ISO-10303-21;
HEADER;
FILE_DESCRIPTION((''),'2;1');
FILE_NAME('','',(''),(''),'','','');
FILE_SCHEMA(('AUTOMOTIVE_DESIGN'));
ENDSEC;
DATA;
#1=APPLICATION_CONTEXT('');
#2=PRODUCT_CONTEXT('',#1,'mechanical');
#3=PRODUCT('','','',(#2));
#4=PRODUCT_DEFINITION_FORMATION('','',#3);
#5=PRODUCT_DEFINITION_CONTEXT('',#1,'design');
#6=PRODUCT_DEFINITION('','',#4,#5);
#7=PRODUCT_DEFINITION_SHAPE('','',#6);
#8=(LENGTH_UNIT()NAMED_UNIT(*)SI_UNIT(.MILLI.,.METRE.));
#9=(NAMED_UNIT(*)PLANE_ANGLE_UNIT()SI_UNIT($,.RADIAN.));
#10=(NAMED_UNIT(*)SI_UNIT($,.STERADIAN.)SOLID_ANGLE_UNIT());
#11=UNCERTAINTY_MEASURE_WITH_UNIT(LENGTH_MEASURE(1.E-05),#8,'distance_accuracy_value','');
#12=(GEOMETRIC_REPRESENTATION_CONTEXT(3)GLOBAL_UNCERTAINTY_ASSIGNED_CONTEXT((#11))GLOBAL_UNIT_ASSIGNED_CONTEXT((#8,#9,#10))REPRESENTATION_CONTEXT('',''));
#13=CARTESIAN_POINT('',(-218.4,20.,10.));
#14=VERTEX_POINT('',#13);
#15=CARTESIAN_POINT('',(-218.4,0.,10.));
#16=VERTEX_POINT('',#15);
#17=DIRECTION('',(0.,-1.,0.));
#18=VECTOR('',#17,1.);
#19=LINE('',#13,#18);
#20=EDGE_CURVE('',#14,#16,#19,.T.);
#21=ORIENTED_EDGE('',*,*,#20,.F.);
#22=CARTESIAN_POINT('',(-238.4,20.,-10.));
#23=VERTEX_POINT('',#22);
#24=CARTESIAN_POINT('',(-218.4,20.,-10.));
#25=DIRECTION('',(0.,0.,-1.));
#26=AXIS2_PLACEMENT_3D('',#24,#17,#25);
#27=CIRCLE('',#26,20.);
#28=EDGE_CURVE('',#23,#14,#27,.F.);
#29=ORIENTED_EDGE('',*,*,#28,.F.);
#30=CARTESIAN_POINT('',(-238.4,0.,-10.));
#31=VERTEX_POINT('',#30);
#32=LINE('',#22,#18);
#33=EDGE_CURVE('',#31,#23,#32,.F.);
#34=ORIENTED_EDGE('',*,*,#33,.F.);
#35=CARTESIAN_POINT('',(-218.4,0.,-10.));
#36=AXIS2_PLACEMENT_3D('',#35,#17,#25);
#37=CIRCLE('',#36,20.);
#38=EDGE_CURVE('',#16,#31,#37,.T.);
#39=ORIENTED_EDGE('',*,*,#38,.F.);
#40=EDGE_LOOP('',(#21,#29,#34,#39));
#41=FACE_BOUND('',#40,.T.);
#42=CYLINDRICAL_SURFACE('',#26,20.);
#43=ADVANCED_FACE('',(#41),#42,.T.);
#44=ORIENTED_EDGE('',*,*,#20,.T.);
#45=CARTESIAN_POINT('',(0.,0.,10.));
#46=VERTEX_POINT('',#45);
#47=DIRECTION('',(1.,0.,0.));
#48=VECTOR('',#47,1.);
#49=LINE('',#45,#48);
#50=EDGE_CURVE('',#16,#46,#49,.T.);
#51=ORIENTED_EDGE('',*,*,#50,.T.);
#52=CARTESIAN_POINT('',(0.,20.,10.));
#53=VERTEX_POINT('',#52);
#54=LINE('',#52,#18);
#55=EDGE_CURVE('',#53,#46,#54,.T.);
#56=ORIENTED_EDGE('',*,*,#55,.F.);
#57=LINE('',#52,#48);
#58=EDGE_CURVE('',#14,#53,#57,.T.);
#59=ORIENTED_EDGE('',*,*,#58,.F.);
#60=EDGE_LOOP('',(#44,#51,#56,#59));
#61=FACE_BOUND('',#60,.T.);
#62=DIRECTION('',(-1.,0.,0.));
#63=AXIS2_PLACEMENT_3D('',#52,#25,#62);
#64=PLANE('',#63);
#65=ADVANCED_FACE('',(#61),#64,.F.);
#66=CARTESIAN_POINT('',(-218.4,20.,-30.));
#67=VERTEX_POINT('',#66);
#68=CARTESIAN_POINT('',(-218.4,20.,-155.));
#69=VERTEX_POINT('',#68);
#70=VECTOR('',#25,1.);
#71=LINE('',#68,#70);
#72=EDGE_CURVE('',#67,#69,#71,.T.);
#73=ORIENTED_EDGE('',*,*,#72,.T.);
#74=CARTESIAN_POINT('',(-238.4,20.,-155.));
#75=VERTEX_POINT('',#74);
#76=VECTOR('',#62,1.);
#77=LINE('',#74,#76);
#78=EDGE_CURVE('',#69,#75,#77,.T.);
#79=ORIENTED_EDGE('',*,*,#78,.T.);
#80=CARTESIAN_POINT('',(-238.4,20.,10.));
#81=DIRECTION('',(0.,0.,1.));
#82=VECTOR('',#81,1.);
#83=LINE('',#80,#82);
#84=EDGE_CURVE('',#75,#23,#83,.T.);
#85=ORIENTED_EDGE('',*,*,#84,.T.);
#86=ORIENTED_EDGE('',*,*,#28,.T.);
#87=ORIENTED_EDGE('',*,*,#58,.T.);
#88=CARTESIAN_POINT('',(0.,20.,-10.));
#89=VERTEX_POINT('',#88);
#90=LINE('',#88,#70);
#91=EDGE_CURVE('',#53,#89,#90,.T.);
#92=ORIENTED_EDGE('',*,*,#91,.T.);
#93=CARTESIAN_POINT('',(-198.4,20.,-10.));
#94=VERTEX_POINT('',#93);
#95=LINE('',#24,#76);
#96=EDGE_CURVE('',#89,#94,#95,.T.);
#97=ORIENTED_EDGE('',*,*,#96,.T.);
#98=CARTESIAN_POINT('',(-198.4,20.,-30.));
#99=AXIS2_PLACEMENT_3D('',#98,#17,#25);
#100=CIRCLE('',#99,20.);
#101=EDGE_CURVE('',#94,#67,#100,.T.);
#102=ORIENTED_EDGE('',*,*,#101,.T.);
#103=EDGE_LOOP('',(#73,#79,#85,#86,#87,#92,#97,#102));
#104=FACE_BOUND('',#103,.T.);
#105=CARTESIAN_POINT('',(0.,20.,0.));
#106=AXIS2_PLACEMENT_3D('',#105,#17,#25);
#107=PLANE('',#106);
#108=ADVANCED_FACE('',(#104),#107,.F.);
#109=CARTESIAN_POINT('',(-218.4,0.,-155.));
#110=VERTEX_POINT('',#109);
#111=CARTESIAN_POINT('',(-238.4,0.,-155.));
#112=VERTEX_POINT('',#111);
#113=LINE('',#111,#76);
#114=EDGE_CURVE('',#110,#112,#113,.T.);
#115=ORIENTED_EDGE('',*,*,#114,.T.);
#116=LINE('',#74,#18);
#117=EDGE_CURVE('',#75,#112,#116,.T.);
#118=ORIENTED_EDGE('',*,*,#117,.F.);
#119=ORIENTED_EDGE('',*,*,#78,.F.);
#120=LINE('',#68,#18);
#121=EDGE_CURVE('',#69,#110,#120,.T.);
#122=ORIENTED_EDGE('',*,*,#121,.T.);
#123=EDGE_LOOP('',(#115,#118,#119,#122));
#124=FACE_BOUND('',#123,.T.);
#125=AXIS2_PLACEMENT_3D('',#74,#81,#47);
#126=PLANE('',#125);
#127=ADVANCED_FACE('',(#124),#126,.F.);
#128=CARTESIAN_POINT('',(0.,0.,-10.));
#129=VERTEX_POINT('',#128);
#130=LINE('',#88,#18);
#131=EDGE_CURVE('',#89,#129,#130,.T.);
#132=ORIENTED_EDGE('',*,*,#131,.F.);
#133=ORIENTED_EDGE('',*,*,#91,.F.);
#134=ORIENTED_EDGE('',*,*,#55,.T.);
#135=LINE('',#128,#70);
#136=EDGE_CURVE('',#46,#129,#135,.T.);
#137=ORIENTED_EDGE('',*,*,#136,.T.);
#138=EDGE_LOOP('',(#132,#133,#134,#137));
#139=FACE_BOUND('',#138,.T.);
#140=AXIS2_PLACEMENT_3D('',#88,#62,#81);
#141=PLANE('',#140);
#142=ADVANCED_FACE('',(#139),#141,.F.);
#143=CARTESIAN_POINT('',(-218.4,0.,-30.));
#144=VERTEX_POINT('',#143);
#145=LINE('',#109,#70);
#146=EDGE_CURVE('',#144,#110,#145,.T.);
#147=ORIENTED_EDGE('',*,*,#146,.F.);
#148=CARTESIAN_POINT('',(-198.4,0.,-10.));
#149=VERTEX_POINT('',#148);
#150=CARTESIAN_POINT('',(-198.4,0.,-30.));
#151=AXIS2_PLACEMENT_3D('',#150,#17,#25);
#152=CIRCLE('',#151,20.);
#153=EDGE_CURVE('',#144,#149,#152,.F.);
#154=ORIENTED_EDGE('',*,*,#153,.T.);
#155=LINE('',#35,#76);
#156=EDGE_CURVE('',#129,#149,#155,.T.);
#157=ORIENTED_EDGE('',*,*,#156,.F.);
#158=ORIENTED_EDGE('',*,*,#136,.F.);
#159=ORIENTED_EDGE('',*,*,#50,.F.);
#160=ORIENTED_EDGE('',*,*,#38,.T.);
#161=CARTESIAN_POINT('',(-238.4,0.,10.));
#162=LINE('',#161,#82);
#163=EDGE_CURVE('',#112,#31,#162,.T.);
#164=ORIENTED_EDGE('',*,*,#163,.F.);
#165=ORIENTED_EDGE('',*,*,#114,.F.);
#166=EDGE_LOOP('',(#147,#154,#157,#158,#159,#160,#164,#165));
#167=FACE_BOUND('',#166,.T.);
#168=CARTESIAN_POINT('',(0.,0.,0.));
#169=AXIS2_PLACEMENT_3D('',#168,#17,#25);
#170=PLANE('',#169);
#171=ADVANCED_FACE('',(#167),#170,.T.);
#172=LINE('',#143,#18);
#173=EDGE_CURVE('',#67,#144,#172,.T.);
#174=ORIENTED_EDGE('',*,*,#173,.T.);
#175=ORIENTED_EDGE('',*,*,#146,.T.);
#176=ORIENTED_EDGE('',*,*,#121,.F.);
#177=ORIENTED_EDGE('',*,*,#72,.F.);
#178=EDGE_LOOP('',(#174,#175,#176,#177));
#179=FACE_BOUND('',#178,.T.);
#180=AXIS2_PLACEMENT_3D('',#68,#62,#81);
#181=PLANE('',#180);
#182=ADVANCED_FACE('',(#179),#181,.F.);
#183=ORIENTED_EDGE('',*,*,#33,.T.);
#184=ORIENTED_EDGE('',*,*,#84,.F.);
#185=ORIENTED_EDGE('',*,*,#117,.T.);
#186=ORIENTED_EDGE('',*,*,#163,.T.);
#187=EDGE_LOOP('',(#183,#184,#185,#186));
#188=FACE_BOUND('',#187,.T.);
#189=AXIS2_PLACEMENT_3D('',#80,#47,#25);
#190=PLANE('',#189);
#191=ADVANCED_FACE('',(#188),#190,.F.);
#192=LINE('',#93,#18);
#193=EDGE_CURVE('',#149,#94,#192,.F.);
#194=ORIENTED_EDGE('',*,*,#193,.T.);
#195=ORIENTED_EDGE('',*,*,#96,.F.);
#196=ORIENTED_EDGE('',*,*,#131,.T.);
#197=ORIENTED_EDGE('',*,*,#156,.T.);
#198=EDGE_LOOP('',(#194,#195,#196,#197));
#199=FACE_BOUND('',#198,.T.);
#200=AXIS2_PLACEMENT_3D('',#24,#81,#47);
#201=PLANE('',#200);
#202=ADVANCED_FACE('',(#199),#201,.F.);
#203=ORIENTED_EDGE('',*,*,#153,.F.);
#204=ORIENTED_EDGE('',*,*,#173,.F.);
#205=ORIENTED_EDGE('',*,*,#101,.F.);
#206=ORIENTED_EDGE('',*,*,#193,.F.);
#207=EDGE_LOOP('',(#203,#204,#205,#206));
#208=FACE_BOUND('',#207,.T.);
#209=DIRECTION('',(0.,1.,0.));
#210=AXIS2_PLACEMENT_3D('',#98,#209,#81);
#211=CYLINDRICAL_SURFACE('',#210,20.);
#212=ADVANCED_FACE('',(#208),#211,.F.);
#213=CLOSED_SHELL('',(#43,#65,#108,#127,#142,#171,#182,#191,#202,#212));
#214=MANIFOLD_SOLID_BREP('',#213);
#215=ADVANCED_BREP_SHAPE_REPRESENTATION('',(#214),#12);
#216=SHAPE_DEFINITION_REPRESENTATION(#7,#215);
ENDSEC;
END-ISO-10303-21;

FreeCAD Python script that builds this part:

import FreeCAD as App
import Part
import Sketcher

V = App.Vector


def edges_at(feature, points):
    """Names of the edges that pass closest to the given points."""
    edges = feature.Shape.Edges
    near = lambda p: min(range(len(edges)), key=lambda i: edges[i].distToShape(Part.Vertex(*p))[0])
    return sorted({f"Edge{near(p) + 1}" for p in points})

doc = App.newDocument("Part")
body = doc.addObject("PartDesign::Body", "Body")

# Sketch on XZ plane
sketch1 = doc.addObject("Sketcher::SketchObject", "Sketch")
body.addObject(sketch1)
sketch1.AttachmentSupport = (doc.XZ_Plane, [""])
sketch1.MapMode = "FlatFace"
sketch1.addGeometry(Part.LineSegment(V(0, -10, 0), V(-218, -10, 0)), False)
sketch1.addGeometry(Part.LineSegment(V(-218, -10, 0), V(-218, -155, 0)), False)
sketch1.addGeometry(Part.LineSegment(V(-218, -155, 0), V(-238, -155, 0)), False)
sketch1.addGeometry(Part.LineSegment(V(-238, -155, 0), V(-238, 10, 0)), False)
sketch1.addGeometry(Part.LineSegment(V(-238, 10, 0), V(0, 10, 0)), False)
sketch1.addGeometry(Part.LineSegment(V(0, 10, 0), V(0, -10, 0)), False)
sketch1.addConstraint(Sketcher.Constraint("Coincident", 0, 2, 1, 1))
sketch1.addConstraint(Sketcher.Constraint("Coincident", 1, 2, 2, 1))
sketch1.addConstraint(Sketcher.Constraint("Coincident", 2, 2, 3, 1))
sketch1.addConstraint(Sketcher.Constraint("Coincident", 3, 2, 4, 1))
sketch1.addConstraint(Sketcher.Constraint("Coincident", 4, 2, 5, 1))
sketch1.addConstraint(Sketcher.Constraint("Coincident", 5, 2, 0, 1))
sketch1.addConstraint(Sketcher.Constraint("Horizontal", 0))
sketch1.addConstraint(Sketcher.Constraint("Vertical", 1))
sketch1.addConstraint(Sketcher.Constraint("Horizontal", 2))
sketch1.addConstraint(Sketcher.Constraint("Vertical", 3))
sketch1.addConstraint(Sketcher.Constraint("Horizontal", 4))
sketch1.addConstraint(Sketcher.Constraint("Vertical", 5))
sketch1.addConstraint(Sketcher.Constraint("Symmetric", 4, 2, 5, 2, -1, 1))
sketch1.addConstraint(Sketcher.Constraint("Equal", 2, 5))
sketch1.addConstraint(Sketcher.Constraint("DistanceX", 2, 2, 2, 1, 20.0))
sketch1.addConstraint(Sketcher.Constraint("DistanceY", 1, 2, 1, 1, 145.0))
sketch1.addConstraint(Sketcher.Constraint("DistanceX", 0, 2, 0, 1, 218.4))
pad1 = doc.addObject("PartDesign::Pad", "Pad")
body.addObject(pad1)
pad1.Profile = sketch1
pad1.Length = 20
pad1.Reversed = True
doc.recompute()

fillet = doc.addObject("PartDesign::Fillet", "Fillet")
body.addObject(fillet)
fillet.Base = (pad1, edges_at(pad1, [(-238.4, 10, 10), (-218.4, 10, -10)]))
fillet.Radius = 20

doc.recompute()
